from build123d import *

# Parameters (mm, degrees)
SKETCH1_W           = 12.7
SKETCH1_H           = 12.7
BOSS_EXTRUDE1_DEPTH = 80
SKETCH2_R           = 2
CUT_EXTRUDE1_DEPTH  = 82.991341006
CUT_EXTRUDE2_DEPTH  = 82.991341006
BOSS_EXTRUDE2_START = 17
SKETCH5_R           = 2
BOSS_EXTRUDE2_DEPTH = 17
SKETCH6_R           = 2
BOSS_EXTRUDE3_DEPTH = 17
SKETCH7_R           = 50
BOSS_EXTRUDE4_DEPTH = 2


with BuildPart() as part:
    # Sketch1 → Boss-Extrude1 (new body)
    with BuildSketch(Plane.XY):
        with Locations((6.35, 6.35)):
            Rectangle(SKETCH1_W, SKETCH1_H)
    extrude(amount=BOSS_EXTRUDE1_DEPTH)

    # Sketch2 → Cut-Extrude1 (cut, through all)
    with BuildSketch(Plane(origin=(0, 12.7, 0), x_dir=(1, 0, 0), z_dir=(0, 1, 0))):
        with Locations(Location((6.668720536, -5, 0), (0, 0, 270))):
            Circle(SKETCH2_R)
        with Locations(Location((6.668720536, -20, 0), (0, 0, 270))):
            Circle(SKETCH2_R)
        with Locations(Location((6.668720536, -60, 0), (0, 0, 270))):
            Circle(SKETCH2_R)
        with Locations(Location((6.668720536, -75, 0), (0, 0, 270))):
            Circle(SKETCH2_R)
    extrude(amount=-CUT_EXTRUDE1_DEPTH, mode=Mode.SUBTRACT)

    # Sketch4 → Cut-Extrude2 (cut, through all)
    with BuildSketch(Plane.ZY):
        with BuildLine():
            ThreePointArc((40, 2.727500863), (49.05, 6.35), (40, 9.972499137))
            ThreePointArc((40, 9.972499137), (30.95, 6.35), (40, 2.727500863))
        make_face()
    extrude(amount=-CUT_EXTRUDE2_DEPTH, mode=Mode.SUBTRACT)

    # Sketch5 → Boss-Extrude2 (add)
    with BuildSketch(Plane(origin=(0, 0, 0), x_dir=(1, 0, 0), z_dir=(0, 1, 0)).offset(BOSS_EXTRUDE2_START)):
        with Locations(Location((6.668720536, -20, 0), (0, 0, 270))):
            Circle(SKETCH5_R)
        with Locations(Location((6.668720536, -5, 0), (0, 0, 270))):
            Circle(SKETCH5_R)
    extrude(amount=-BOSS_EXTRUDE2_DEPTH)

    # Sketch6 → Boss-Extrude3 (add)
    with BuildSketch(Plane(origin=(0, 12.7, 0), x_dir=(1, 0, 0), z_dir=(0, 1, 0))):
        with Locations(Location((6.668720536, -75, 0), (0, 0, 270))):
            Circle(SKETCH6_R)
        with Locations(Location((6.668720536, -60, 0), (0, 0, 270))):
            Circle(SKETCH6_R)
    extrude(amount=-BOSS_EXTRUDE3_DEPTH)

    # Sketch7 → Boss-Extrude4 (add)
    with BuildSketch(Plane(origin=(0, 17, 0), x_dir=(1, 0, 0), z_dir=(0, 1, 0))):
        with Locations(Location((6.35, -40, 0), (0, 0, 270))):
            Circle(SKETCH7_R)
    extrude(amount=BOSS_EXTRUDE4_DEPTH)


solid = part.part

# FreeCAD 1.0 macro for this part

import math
import FreeCAD as App
import Part
import Sketcher

V = App.Vector
Q = App.Units.Quantity

doc = App.newDocument("Part")
body = doc.addObject("PartDesign::Body", "Body")

# Sketch on XY plane
sketch1 = body.newObject("Sketcher::SketchObject", "Sketch")
sketch1.AttachmentSupport = (doc.getObject("XY_Plane"), [""])
sketch1.MapMode = "FlatFace"
sketch1.addGeometry(Part.LineSegment(V(0, 13, 0), V(0, 0, 0)), False)
sketch1.addGeometry(Part.LineSegment(V(0, 0, 0), V(13, 0, 0)), False)
sketch1.addGeometry(Part.LineSegment(V(13, 0, 0), V(13, 13, 0)), False)
sketch1.addGeometry(Part.LineSegment(V(13, 13, 0), V(0, 13, 0)), False)
sketch1.addConstraint(Sketcher.Constraint("Coincident", 0, 2, 1, 1))
sketch1.addConstraint(Sketcher.Constraint("Coincident", 1, 2, 2, 1))
sketch1.addConstraint(Sketcher.Constraint("Coincident", 2, 2, 3, 1))
sketch1.addConstraint(Sketcher.Constraint("Coincident", 3, 2, 0, 1))
sketch1.addConstraint(Sketcher.Constraint("Vertical", 0))
sketch1.addConstraint(Sketcher.Constraint("Horizontal", 1))
sketch1.addConstraint(Sketcher.Constraint("Vertical", 2))
sketch1.addConstraint(Sketcher.Constraint("Horizontal", 3))
sketch1.addConstraint(Sketcher.Constraint("Coincident", 0, 2, -1, 1))
sketch1.addConstraint(Sketcher.Constraint("Equal", 3, 0))
sketch1.addConstraint(Sketcher.Constraint("DistanceX", 1, 1, 1, 2, Q("12.7 mm")))
pad1 = body.newObject("PartDesign::Pad", "Pad")
pad1.Profile = sketch1
pad1.Length = 80

# Sketch on XZ plane
sketch2 = body.newObject("Sketcher::SketchObject", "Sketch001")
sketch2.AttachmentSupport = (doc.getObject("XZ_Plane"), [""])
sketch2.MapMode = "FlatFace"
sketch2.AttachmentOffset = App.Placement(V(0, 0, -12.7), App.Rotation())
sketch2.addGeometry(Part.Circle(V(6.7, 5, 0), V(0, 0, 1), 2), False)
sketch2.addGeometry(Part.Circle(V(6.7, 20, 0), V(0, 0, 1), 2), False)
sketch2.addGeometry(Part.Circle(V(6.7, 60, 0), V(0, 0, 1), 2), False)
sketch2.addGeometry(Part.Circle(V(6.7, 75, 0), V(0, 0, 1), 2), False)
sketch2.addConstraint(Sketcher.Constraint("Equal", 0, 1))
sketch2.addConstraint(Sketcher.Constraint("Equal", 1, 2))
sketch2.addConstraint(Sketcher.Constraint("Equal", 2, 3))
sketch2.addConstraint(Sketcher.Constraint("Vertical", 0, 3, 1, 3))
sketch2.addConstraint(Sketcher.Constraint("Vertical", 1, 3, 2, 3))
sketch2.addConstraint(Sketcher.Constraint("Vertical", 2, 3, 3, 3))
sketch2.addConstraint(Sketcher.Constraint("Diameter", 0, Q("4 mm")))
sketch2.addConstraint(Sketcher.Constraint("DistanceY", -1, 1, 0, 3, Q("5 mm")))
sketch2.addConstraint(Sketcher.Constraint("DistanceY", -1, 1, 1, 3, Q("20 mm")))
sketch2.addConstraint(Sketcher.Constraint("DistanceY", -1, 1, 2, 3, Q("60 mm")))
sketch2.addConstraint(Sketcher.Constraint("DistanceY", -1, 1, 3, 3, Q("75 mm")))
sketch2.addConstraint(Sketcher.Constraint("DistanceX", -1, 1, 0, 3, Q("6.668721 mm")))
pocket1 = body.newObject("PartDesign::Pocket", "Pocket")
pocket1.Profile = sketch2
pocket1.Type = "ThroughAll"
pocket1.Reversed = True

# Sketch on YZ plane
sketch3 = body.newObject("Sketcher::SketchObject", "Sketch002")
sketch3.AttachmentSupport = (doc.getObject("YZ_Plane"), [""])
sketch3.MapMode = "FlatFace"
sketch3.addGeometry(Part.ArcOfCircle(Part.Circle(V(6, 44, 0), V(0, 0, 1), 5), math.radians(-46), math.radians(226)), False)
sketch3.addGeometry(Part.ArcOfCircle(Part.Circle(V(6, 36, 0), V(0, 0, 1), 5), math.radians(134), math.radians(406)), False)
sketch3.addConstraint(Sketcher.Constraint("Coincident", 0, 1, 1, 2))
sketch3.addConstraint(Sketcher.Constraint("Coincident", 1, 1, 0, 2))
sketch3.addConstraint(Sketcher.Constraint("Equal", 0, 1))
sketch3.addConstraint(Sketcher.Constraint("Horizontal", 0, 1, 1, 1))
sketch3.addConstraint(Sketcher.Constraint("Radius", 0, Q("5.25 mm")))
sketch3.addConstraint(Sketcher.Constraint("DistanceY", -1, 1, 0, 1, Q("40 mm")))
sketch3.addConstraint(Sketcher.Constraint("DistanceY", -1, 1, 0, 3, Q("43.8 mm")))
sketch3.addConstraint(Sketcher.Constraint("DistanceX", -1, 1, 0, 3, Q("6.35 mm")))
pocket2 = body.newObject("PartDesign::Pocket", "Pocket001")
pocket2.Profile = sketch3
pocket2.Type = "ThroughAll"
pocket2.Reversed = True

# Sketch on XZ plane
sketch4 = body.newObject("Sketcher::SketchObject", "Sketch003")
sketch4.AttachmentSupport = (doc.getObject("XZ_Plane"), [""])
sketch4.MapMode = "FlatFace"
sketch4.AttachmentOffset = App.Placement(V(0, 0, -17), App.Rotation())
sketch4.addGeometry(Part.Circle(V(6.7, 20, 0), V(0, 0, 1), 2), False)
sketch4.addGeometry(Part.Circle(V(6.7, 5, 0), V(0, 0, 1), 2), False)
sketch4.addConstraint(Sketcher.Constraint("Equal", 0, 1))
sketch4.addConstraint(Sketcher.Constraint("Vertical", 0, 3, 1, 3))
sketch4.addConstraint(Sketcher.Constraint("Diameter", 0, Q("4 mm")))
sketch4.addConstraint(Sketcher.Constraint("DistanceY", -1, 1, 0, 3, Q("20 mm")))
sketch4.addConstraint(Sketcher.Constraint("DistanceY", -1, 1, 1, 3, Q("5 mm")))
sketch4.addConstraint(Sketcher.Constraint("DistanceX", -1, 1, 0, 3, Q("6.668721 mm")))
pad2 = body.newObject("PartDesign::Pad", "Pad001")
pad2.Profile = sketch4
pad2.Length = 17

# Sketch on XZ plane
sketch5 = body.newObject("Sketcher::SketchObject", "Sketch004")
sketch5.AttachmentSupport = (doc.getObject("XZ_Plane"), [""])
sketch5.MapMode = "FlatFace"
sketch5.AttachmentOffset = App.Placement(V(0, 0, -12.7), App.Rotation())
sketch5.addGeometry(Part.Circle(V(6.7, 75, 0), V(0, 0, 1), 2), False)
sketch5.addGeometry(Part.Circle(V(6.7, 60, 0), V(0, 0, 1), 2), False)
sketch5.addConstraint(Sketcher.Constraint("Equal", 0, 1))
sketch5.addConstraint(Sketcher.Constraint("Vertical", 0, 3, 1, 3))
sketch5.addConstraint(Sketcher.Constraint("Diameter", 0, Q("4 mm")))
sketch5.addConstraint(Sketcher.Constraint("DistanceY", -1, 1, 0, 3, Q("75 mm")))
sketch5.addConstraint(Sketcher.Constraint("DistanceY", -1, 1, 1, 3, Q("60 mm")))
sketch5.addConstraint(Sketcher.Constraint("DistanceX", -1, 1, 0, 3, Q("6.668721 mm")))
pad3 = body.newObject("PartDesign::Pad", "Pad002")
pad3.Profile = sketch5
pad3.Length = 17

# Sketch on XZ plane
sketch6 = body.newObject("Sketcher::SketchObject", "Sketch005")
sketch6.AttachmentSupport = (doc.getObject("XZ_Plane"), [""])
sketch6.MapMode = "FlatFace"
sketch6.AttachmentOffset = App.Placement(V(0, 0, -17), App.Rotation())
sketch6.addGeometry(Part.Circle(V(6, 40, 0), V(0, 0, 1), 50), False)
sketch6.addConstraint(Sketcher.Constraint("Diameter", 0, Q("100 mm")))
sketch6.addConstraint(Sketcher.Constraint("DistanceY", -1, 1, 0, 3, Q("40 mm")))
sketch6.addConstraint(Sketcher.Constraint("DistanceX", -1, 1, 0, 3, Q("6.35 mm")))
pad4 = body.newObject("PartDesign::Pad", "Pad003")
pad4.Profile = sketch6
pad4.Length = 2
pad4.Reversed = True

doc.recompute()
